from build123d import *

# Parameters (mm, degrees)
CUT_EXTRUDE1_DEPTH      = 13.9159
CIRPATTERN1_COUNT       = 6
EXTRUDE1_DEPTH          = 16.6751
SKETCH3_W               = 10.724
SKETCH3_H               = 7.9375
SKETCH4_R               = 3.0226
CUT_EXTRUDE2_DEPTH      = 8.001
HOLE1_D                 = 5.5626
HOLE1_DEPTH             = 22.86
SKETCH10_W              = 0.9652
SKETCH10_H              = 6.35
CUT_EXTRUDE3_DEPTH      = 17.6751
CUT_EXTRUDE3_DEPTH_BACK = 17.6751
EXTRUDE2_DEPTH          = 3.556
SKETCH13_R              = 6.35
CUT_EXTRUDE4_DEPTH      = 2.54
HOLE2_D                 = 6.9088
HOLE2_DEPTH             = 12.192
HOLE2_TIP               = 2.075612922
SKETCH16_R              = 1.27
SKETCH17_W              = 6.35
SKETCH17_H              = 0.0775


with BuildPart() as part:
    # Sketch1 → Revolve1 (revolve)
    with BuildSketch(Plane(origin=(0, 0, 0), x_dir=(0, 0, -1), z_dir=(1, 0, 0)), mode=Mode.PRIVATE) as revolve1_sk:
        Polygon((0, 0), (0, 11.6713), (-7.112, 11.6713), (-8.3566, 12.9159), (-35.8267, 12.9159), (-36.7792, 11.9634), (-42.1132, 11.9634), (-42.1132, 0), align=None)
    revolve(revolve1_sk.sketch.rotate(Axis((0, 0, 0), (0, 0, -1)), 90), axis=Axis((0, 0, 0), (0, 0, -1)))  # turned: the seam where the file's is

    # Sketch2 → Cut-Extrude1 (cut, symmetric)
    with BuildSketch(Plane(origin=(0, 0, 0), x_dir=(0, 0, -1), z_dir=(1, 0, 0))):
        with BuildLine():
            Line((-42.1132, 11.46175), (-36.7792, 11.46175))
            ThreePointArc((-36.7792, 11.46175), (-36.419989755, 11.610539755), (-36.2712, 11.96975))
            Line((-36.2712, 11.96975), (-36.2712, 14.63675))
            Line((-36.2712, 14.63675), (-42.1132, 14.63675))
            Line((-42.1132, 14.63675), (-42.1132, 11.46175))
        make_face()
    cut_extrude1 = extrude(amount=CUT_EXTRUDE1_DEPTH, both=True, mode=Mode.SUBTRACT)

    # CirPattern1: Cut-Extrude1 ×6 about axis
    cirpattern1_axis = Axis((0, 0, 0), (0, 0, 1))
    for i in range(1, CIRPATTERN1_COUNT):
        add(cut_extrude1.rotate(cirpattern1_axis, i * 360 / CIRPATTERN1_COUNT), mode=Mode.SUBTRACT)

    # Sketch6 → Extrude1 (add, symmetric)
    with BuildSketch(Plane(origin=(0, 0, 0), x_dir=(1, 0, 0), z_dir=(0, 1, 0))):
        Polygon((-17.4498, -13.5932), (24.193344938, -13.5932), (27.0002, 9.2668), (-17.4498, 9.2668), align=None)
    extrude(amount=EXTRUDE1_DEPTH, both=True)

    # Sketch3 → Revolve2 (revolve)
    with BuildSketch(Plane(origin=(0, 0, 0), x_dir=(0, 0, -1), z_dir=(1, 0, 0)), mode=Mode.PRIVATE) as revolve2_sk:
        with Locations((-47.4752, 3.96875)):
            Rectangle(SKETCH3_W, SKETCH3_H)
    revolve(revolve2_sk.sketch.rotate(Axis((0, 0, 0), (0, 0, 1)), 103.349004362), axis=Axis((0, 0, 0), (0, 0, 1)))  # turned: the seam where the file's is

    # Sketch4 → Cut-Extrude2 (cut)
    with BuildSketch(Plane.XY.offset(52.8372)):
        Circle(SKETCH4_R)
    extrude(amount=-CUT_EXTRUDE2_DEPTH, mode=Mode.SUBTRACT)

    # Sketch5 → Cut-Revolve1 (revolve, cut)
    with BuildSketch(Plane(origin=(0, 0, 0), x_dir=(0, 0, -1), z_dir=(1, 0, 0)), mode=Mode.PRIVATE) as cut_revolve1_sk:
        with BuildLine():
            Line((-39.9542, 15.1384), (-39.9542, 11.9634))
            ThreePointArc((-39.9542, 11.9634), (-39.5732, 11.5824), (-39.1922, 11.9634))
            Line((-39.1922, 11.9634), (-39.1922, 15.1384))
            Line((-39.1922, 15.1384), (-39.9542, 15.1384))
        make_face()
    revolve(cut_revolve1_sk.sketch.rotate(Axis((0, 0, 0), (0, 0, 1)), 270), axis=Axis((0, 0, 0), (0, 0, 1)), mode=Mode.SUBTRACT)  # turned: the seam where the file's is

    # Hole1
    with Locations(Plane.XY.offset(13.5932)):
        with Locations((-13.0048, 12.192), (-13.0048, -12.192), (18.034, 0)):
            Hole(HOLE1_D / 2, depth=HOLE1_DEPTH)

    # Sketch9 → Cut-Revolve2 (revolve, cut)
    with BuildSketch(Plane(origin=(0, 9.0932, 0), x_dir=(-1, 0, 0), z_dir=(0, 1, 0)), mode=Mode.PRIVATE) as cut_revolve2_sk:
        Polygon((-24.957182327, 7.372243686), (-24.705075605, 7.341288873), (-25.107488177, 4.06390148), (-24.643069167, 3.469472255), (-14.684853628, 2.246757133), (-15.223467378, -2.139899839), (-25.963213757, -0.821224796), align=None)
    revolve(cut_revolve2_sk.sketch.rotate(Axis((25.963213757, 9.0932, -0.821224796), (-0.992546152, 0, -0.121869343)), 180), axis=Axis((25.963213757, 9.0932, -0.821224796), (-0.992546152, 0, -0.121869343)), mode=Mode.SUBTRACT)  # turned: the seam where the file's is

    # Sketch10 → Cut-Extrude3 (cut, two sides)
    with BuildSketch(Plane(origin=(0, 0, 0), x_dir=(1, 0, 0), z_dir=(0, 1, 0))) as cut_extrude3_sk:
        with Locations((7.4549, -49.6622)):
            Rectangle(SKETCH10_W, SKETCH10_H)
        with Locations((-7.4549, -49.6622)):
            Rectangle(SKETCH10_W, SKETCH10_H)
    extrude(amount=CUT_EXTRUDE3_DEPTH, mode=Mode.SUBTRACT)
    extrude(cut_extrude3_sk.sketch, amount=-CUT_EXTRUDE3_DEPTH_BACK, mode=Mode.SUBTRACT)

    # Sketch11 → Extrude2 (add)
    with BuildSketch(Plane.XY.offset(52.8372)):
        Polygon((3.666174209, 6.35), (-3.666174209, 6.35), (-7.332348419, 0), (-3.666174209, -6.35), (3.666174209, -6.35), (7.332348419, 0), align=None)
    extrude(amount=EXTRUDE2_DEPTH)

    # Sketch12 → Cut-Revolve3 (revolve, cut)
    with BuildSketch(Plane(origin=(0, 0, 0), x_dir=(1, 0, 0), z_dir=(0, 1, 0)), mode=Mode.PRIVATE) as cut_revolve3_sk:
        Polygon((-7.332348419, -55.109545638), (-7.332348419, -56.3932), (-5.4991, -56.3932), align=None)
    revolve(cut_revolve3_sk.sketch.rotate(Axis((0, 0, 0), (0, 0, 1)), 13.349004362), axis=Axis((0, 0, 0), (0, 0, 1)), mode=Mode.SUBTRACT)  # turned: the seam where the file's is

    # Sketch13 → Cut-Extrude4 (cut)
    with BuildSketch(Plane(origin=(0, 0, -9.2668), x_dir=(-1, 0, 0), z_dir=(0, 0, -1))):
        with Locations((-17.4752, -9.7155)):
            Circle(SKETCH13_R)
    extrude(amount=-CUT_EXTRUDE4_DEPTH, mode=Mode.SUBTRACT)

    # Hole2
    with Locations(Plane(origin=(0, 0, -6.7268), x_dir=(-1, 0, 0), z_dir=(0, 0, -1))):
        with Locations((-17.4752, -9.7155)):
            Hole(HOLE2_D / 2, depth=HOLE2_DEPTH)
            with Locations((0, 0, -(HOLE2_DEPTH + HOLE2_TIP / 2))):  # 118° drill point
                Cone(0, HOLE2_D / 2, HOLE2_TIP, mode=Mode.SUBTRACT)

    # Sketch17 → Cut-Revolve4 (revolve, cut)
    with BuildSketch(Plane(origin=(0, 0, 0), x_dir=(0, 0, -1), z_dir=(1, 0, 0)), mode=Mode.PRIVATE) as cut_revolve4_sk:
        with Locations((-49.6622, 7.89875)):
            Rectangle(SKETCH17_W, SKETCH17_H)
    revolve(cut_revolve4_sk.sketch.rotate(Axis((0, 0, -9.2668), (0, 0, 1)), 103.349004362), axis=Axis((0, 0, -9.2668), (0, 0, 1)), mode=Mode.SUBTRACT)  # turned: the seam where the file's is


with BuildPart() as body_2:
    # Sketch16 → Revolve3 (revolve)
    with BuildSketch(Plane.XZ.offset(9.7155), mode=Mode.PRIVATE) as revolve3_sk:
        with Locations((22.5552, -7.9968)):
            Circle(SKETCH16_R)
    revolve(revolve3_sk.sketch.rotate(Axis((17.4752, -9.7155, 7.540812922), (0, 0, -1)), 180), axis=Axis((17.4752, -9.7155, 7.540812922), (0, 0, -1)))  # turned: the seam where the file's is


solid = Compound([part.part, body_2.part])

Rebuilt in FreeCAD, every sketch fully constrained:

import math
import FreeCAD as App
import Part
import Sketcher

V = App.Vector
Q = App.Units.Quantity


def add_polygon(sketch, points):
    """Adds a closed chain of lines whose ends are joined by coincident constraints."""
    first, n = sketch.GeometryCount, len(points)
    for a, b in zip(points, points[1:] + points[:1]):
        sketch.addGeometry(Part.LineSegment(App.Vector(*a, 0), App.Vector(*b, 0)), False)
    for i in range(n):
        sketch.addConstraint(Sketcher.Constraint("Coincident", first + i, 2, first + (i + 1) % n, 1))

doc = App.newDocument("Part")
body = doc.addObject("PartDesign::Body", "Body")

sketch1 = body.newObject("Sketcher::SketchObject", "Sketch")
sketch1.AttachmentSupport = (doc.getObject("YZ_Plane"), [""])
sketch1.MapMode = "FlatFace"
add_polygon(sketch1, [(0, 0), (11.7, 0), (11.7, 7.1), (12.9, 8.4), (12.9, 35.8), (12, 36.8), (12, 42.1), (0, 42.1)])
sketch1.addConstraint([
    Sketcher.Constraint("Horizontal", 0),
    Sketcher.Constraint("Vertical", 1),
    Sketcher.Constraint("Vertical", 3),
    Sketcher.Constraint("Vertical", 5),
    Sketcher.Constraint("Horizontal", 6),
    Sketcher.Constraint("Vertical", 7),
    Sketcher.Constraint("Coincident", 7, 2, -1, 1),
    Sketcher.Constraint("Perpendicular", 2, 4),
    Sketcher.Constraint("Angle", 2, Q("45 deg")),
    Sketcher.Constraint("DistanceY", 1, 1, 1, 2, Q("0.28 in")),
    Sketcher.Constraint("DistanceY", 5, 1, 5, 2, Q("0.21 in")),
    Sketcher.Constraint("DistanceX", 6, 2, 6, 1, Q("0.471 in")),
    Sketcher.Constraint("DistanceY", 7, 2, 7, 1, Q("1.658 in")),
    Sketcher.Constraint("DistanceX", 0, 1, 0, 2, Q("0.4595 in")),
    Sketcher.Constraint("DistanceY", 3, 1, 3, 2, Q("1.0815 in")),
])
revolution = body.newObject("PartDesign::Revolution", "Revolution")
revolution.Profile = sketch1
revolution.ReferenceAxis = (sketch1, ["V_Axis"])
revolution.Angle = 360

sketch2 = body.newObject("Sketcher::SketchObject", "Sketch001")
sketch2.AttachmentSupport = (doc.getObject("YZ_Plane"), [""])
sketch2.MapMode = "FlatFace"
sketch2.addGeometry([
    Part.LineSegment(V(11.5, 42.1, 0), V(11.5, 36.8, 0)),
    Part.ArcOfCircle(Part.Circle(V(12, 36.8, 0), V(0, 0, 1), 0.5), math.radians(180), math.radians(270)),
    Part.LineSegment(V(12, 36.3, 0), V(14.6, 36.3, 0)),
    Part.LineSegment(V(14.6, 36.3, 0), V(14.6, 42.1, 0)),
    Part.LineSegment(V(14.6, 42.1, 0), V(11.5, 42.1, 0)),
], False)
sketch2.addConstraint([
    Sketcher.Constraint("Tangent", 0, 2, 1, 1),
    Sketcher.Constraint("Tangent", 1, 2, 2, 1),
    Sketcher.Constraint("Coincident", 2, 2, 3, 1),
    Sketcher.Constraint("Coincident", 3, 2, 4, 1),
    Sketcher.Constraint("Coincident", 4, 2, 0, 1),
    Sketcher.Constraint("Vertical", 0),
    Sketcher.Constraint("Horizontal", 2),
    Sketcher.Constraint("Vertical", 3),
    Sketcher.Constraint("Horizontal", 4),
    Sketcher.Constraint("Radius", 1, Q("0.02 in")),
    Sketcher.Constraint("DistanceY", 0, 2, 0, 1, Q("0.21 in")),
    Sketcher.Constraint("DistanceX", 2, 1, 2, 2, Q("0.105 in")),
    Sketcher.Constraint("DistanceY", -1, 1, 1, 3, Q("1.448 in")),
    Sketcher.Constraint("DistanceX", -1, 1, 1, 3, 11.96975),
])
pocket1 = body.newObject("PartDesign::Pocket", "Pocket")
pocket1.Profile = sketch2
pocket1.Length = 27.8318
pocket1.Midplane = True
doc.recompute()

polarpattern = body.newObject("PartDesign::PolarPattern", "PolarPattern")
polarpattern.Originals = [pocket1]
polarpattern.Axis = (doc.getObject("Z_Axis"), [""])
polarpattern.Angle = 360
polarpattern.Occurrences = 6
body.Tip = polarpattern

sketch3 = body.newObject("Sketcher::SketchObject", "Sketch002")
sketch3.AttachmentSupport = (doc.getObject("XZ_Plane"), [""])
sketch3.MapMode = "FlatFace"
add_polygon(sketch3, [(-17, 14), (24, 14), (27, -9), (-17, -9)])
sketch3.addConstraint([
    Sketcher.Constraint("Horizontal", 0),
    Sketcher.Constraint("Horizontal", 2),
    Sketcher.Constraint("Vertical", 3),
    Sketcher.Constraint("DistanceY", 3, 1, 3, 2, Q("0.9 in")),
    Sketcher.Constraint("Angle", 1, Q("-83 deg")),
    Sketcher.Constraint("DistanceX", 2, 2, 2, 1, Q("1.75 in")),
    Sketcher.Constraint("DistanceX", -1, 1, 1, 2, Q("1.063 in")),
    Sketcher.Constraint("DistanceY", -1, 1, 0, 2, 13.5932),
])
pad1 = body.newObject("PartDesign::Pad", "Pad")
pad1.Profile = sketch3
pad1.Length = Q("1.313 in")
pad1.Midplane = True

sketch4 = body.newObject("Sketcher::SketchObject", "Sketch003")
sketch4.AttachmentSupport = (doc.getObject("YZ_Plane"), [""])
sketch4.MapMode = "FlatFace"
add_polygon(sketch4, [(8, 53), (0, 53), (0, 42), (8, 42)])
sketch4.addConstraint([
    Sketcher.Constraint("Horizontal", 0),
    Sketcher.Constraint("Vertical", 1),
    Sketcher.Constraint("Horizontal", 2),
    Sketcher.Constraint("Vertical", 3),
    Sketcher.Constraint("PointOnObject", 0, 2, -2),
    Sketcher.Constraint("DistanceX", 0, 2, 0, 1, Q("0.3125 in")),
    Sketcher.Constraint("DistanceY", -1, 1, 1, 2, Q("1.658 in")),
    Sketcher.Constraint("DistanceY", 1, 2, 1, 1, 10.724),
])
revolution2 = body.newObject("PartDesign::Revolution", "Revolution001")
revolution2.Profile = sketch4
revolution2.ReferenceAxis = (sketch4, ["V_Axis"])
revolution2.Angle = 360

sketch5 = body.newObject("Sketcher::SketchObject", "Sketch004")
sketch5.AttachmentSupport = (doc.getObject("XY_Plane"), [""])
sketch5.MapMode = "FlatFace"
sketch5.AttachmentOffset = App.Placement(V(0, 0, 52.8372), App.Rotation())
sketch5.addGeometry(Part.Circle(V(0, 0, 0), V(0, 0, 1), 3), False)
sketch5.addConstraint([
    Sketcher.Constraint("Coincident", 0, 3, -1, 1),
    Sketcher.Constraint("Diameter", 0, Q("0.238 in")),
])
pocket2 = body.newObject("PartDesign::Pocket", "Pocket001")
pocket2.Profile = sketch5
pocket2.Length = Q("0.315 in")

sketch6 = body.newObject("Sketcher::SketchObject", "Sketch005")
sketch6.AttachmentSupport = (doc.getObject("YZ_Plane"), [""])
sketch6.MapMode = "FlatFace"
sketch6.addGeometry([
    Part.LineSegment(V(15.14, 39.95, 0), V(11.96, 39.95, 0)),
    Part.ArcOfCircle(Part.Circle(V(11.96, 39.57, 0), V(0, 0, 1), 0.38), math.radians(90), math.radians(270)),
    Part.LineSegment(V(11.96, 39.19, 0), V(15.14, 39.19, 0)),
    Part.LineSegment(V(15.14, 39.19, 0), V(15.14, 39.95, 0)),
], False)
sketch6.addConstraint([
    Sketcher.Constraint("Tangent", 0, 2, 1, 1),
    Sketcher.Constraint("Tangent", 1, 2, 2, 1),
    Sketcher.Constraint("Coincident", 2, 2, 3, 1),
    Sketcher.Constraint("Coincident", 3, 2, 0, 1),
    Sketcher.Constraint("Horizontal", 0),
    Sketcher.Constraint("Horizontal", 2),
    Sketcher.Constraint("Vertical", 3),
    Sketcher.Constraint("Radius", 1, Q("0.015 in")),
    Sketcher.Constraint("DistanceX", 0, 2, 0, 1, Q("0.125 in")),
    Sketcher.Constraint("DistanceX", -1, 1, 1, 3, Q("0.471 in")),
    Sketcher.Constraint("DistanceY", -1, 1, 1, 3, Q("1.558 in")),
])
groove = body.newObject("PartDesign::Groove", "Groove")
groove.Profile = sketch6
groove.ReferenceAxis = (sketch6, ["V_Axis"])
groove.Angle = 360

sketch7 = body.newObject("Sketcher::SketchObject", "Sketch006")
sketch7.AttachmentSupport = (doc.getObject("XY_Plane"), [""])
sketch7.MapMode = "FlatFace"
sketch7.AttachmentOffset = App.Placement(V(0, 0, 13.5932), App.Rotation())
sketch7.addGeometry([
    Part.Circle(V(-13, 12.2, 0), V(0, 0, 1), 2.8),
    Part.Circle(V(-13, -12.2, 0), V(0, 0, 1), 2.8),
    Part.Circle(V(18, 0, 0), V(0, 0, 1), 2.8),
], False)
sketch7.addConstraint([
    Sketcher.Constraint("Equal", 0, 1),
    Sketcher.Constraint("Equal", 1, 2),
    Sketcher.Constraint("Symmetric", 0, 3, 1, 3, -1),
    Sketcher.Constraint("PointOnObject", 2, 3, -1),
    Sketcher.Constraint("Diameter", 0, Q("0.219 in")),
    Sketcher.Constraint("DistanceY", -1, 1, 0, 3, Q("0.48 in")),
    Sketcher.Constraint("DistanceX", -1, 1, 2, 3, Q("0.71 in")),
    Sketcher.Constraint("DistanceX", 0, 3, -1, 1, Q("0.512 in")),
])
doc.recompute()
hole = body.newObject("PartDesign::Hole", "Hole")
hole.Profile = sketch7
hole.ThreadType = "None"
hole.Diameter = Q("0.219 in")
hole.DepthType = "Dimension"
hole.Depth = Q("0.9 in")
hole.DrillPoint = "Flat"

sketch8 = body.newObject("Sketcher::SketchObject", "Sketch007")
sketch8.AttachmentSupport = (doc.getObject("XZ_Plane"), [""])
sketch8.MapMode = "FlatFace"
sketch8.AttachmentOffset = App.Placement(V(0, 0, -0.358 * 25.4), App.Rotation())
add_polygon(sketch8, [(24.71, 7.34), (24.96, 7.37), (25.96, -0.82), (15.22, -2.14), (14.68, 2.25), (24.64, 3.47), (25.11, 4.06)])
sketch8.addGeometry(Part.LineSegment(V(25.96, -0.82, 0), V(15.22, -2.14, 0)), True)
sketch8.addConstraint([
    Sketcher.Constraint("Coincident", 7, 1, 1, 2),
    Sketcher.Constraint("Coincident", 7, 2, 2, 2),
    Sketcher.Constraint("Perpendicular", 0, 1),
    Sketcher.Constraint("Perpendicular", 1, 2),
    Sketcher.Constraint("Perpendicular", 2, 3),
    Sketcher.Constraint("Perpendicular", 3, 4),
    Sketcher.Constraint("Perpendicular", 4, 6),
    Sketcher.Constraint("Angle", 0, Q("7 deg")),
    Sketcher.Constraint("Angle", 5, Q("52 deg")),
    Sketcher.Constraint("Distance", 0, Q("0.01 in")),
    Sketcher.Constraint("Distance", 6, Q("0.13 in")),
    Sketcher.Constraint("Distance", 1, Q("0.325 in")),
    Sketcher.Constraint("Distance", 2, Q("0.426 in")),
    Sketcher.Constraint("Distance", 3, Q("0.174 in")),
    Sketcher.Constraint("DistanceY", 2, 2, -1, 1, 2.1399),
    Sketcher.Constraint("DistanceX", -1, 1, 4, 2, 24.643069),
])
groove2 = body.newObject("PartDesign::Groove", "Groove001")
groove2.Profile = sketch8
groove2.ReferenceAxis = (sketch8, ["Axis0"])
groove2.Angle = 360

sketch9 = body.newObject("Sketcher::SketchObject", "Sketch008")
sketch9.AttachmentSupport = (doc.getObject("XZ_Plane"), [""])
sketch9.MapMode = "FlatFace"
add_polygon(sketch9, [(7, 46.5), (7, 52.8), (7.9, 52.8), (7.9, 46.5)])
add_polygon(sketch9, [(-7.9, 46.5), (-7.9, 52.8), (-7, 52.8), (-7, 46.5)])
sketch9.addConstraint([
    Sketcher.Constraint("Vertical", 0),
    Sketcher.Constraint("Horizontal", 1),
    Sketcher.Constraint("Vertical", 2),
    Sketcher.Constraint("Horizontal", 3),
    Sketcher.Constraint("Vertical", 4),
    Sketcher.Constraint("Horizontal", 5),
    Sketcher.Constraint("Vertical", 6),
    Sketcher.Constraint("Horizontal", 7),
    Sketcher.Constraint("Symmetric", 1, 2, 4, 2, -2),
    Sketcher.Constraint("Symmetric", 3, 2, 6, 2, -2),
    Sketcher.Constraint("DistanceY", 0, 1, 0, 2, Q("0.25 in")),
    Sketcher.Constraint("DistanceX", 1, 1, 1, 2, Q("0.038 in")),
    Sketcher.Constraint("DistanceX", -1, 1, 1, 2, Q("0.3125 in")),
    Sketcher.Constraint("DistanceY", -1, 1, 0, 2, 52.8372),
])
pocket3 = body.newObject("PartDesign::Pocket", "Pocket002")
pocket3.Profile = sketch9
pocket3.Type = "ThroughAll"
pocket3.Midplane = True

sketch10 = body.newObject("Sketcher::SketchObject", "Sketch009")
sketch10.AttachmentSupport = (doc.getObject("XY_Plane"), [""])
sketch10.MapMode = "FlatFace"
sketch10.AttachmentOffset = App.Placement(V(0, 0, 52.8372), App.Rotation())
add_polygon(sketch10, [(4, 6), (-4, 6), (-7, 0), (-4, -6), (4, -6), (7, 0)])
sketch10.addConstraint([
    Sketcher.Constraint("Horizontal", 0),
    Sketcher.Constraint("Horizontal", 3),
    Sketcher.Constraint("Symmetric", 0, 2, 3, 2, -1, 1),
    Sketcher.Constraint("Symmetric", 1, 2, 4, 2, -1, 1),
    Sketcher.Constraint("PointOnObject", 1, 2, -1),
    Sketcher.Constraint("Parallel", 2, 5),
    Sketcher.Constraint("Vertical", 0, 2, 2, 2),
    Sketcher.Constraint("Angle", 1, Q("-120 deg")),
    Sketcher.Constraint("DistanceY", 2, 2, 0, 2, Q("0.5 in")),
    Sketcher.Constraint("DistanceX", 0, 2, 0, 1, 7.332348),
])
pad2 = body.newObject("PartDesign::Pad", "Pad001")
pad2.Profile = sketch10
pad2.Length = Q("0.14 in")

sketch11 = body.newObject("Sketcher::SketchObject", "Sketch010")
sketch11.AttachmentSupport = (doc.getObject("XZ_Plane"), [""])
sketch11.MapMode = "FlatFace"
add_polygon(sketch11, [(-7.3, 55.1), (-7.3, 56.4), (-5.5, 56.4)])
sketch11.addConstraint([
    Sketcher.Constraint("Vertical", 0),
    Sketcher.Constraint("Horizontal", 1),
    Sketcher.Constraint("Angle", 2, Q("-145 deg")),
    Sketcher.Constraint("DistanceX", 1, 2, -1, 1, Q("0.2165 in")),
    Sketcher.Constraint("DistanceX", 1, 1, 1, 2, 1.833248),
    Sketcher.Constraint("DistanceY", -1, 1, 0, 2, 56.3932),
])
groove3 = body.newObject("PartDesign::Groove", "Groove002")
groove3.Profile = sketch11
groove3.ReferenceAxis = (sketch11, ["V_Axis"])
groove3.Angle = 360

sketch12 = body.newObject("Sketcher::SketchObject", "Sketch011")
sketch12.AttachmentSupport = (doc.getObject("XY_Plane"), [""])
sketch12.MapMode = "FlatFace"
sketch12.AttachmentOffset = App.Placement(V(0, 0, -9.2668), App.Rotation())
sketch12.addGeometry(Part.Circle(V(17, -10, 0), V(0, 0, 1), 6), False)
sketch12.addConstraint([
    Sketcher.Constraint("Diameter", 0, Q("0.5 in")),
    Sketcher.Constraint("DistanceX", -1, 1, 0, 3, Q("0.688 in")),
    Sketcher.Constraint("DistanceY", 0, 3, -1, 1, Q("0.3825 in")),
])
pocket4 = body.newObject("PartDesign::Pocket", "Pocket003")
pocket4.Profile = sketch12
pocket4.Length = Q("0.1 in")
pocket4.Reversed = True

sketch13 = body.newObject("Sketcher::SketchObject", "Sketch012")
sketch13.AttachmentSupport = (doc.getObject("XY_Plane"), [""])
sketch13.MapMode = "FlatFace"
sketch13.AttachmentOffset = App.Placement(V(0, 0, -6.7268), App.Rotation())
sketch13.addGeometry(Part.Circle(V(17.5, -9.7, 0), V(0, 0, 1), 3.5), False)
sketch13.addConstraint([
    Sketcher.Constraint("Diameter", 0, Q("0.272 in")),
    Sketcher.Constraint("DistanceX", -1, 1, 0, 3, Q("0.688 in")),
    Sketcher.Constraint("DistanceY", 0, 3, -1, 1, Q("0.3825 in")),
])
doc.recompute()
hole2 = body.newObject("PartDesign::Hole", "Hole001")
hole2.Profile = sketch13
hole2.ThreadType = "None"
hole2.Diameter = Q("0.272 in")
hole2.DepthType = "Dimension"
hole2.Depth = Q("0.48 in")
hole2.DrillPoint = "Angled"
hole2.DrillPointAngle = 118
hole2.Reversed = True

sketch14 = body.newObject("Sketcher::SketchObject", "Sketch013")
sketch14.AttachmentSupport = (doc.getObject("YZ_Plane"), [""])
sketch14.MapMode = "FlatFace"
add_polygon(sketch14, [(7.94, 52.84), (7.86, 52.84), (7.86, 46.49), (7.94, 46.49)])
sketch14.addConstraint([
    Sketcher.Constraint("Horizontal", 0),
    Sketcher.Constraint("Vertical", 1),
    Sketcher.Constraint("Horizontal", 2),
    Sketcher.Constraint("Vertical", 3),
    Sketcher.Constraint("DistanceY", 1, 2, 1, 1, Q("0.25 in")),
    Sketcher.Constraint("DistanceX", -1, 1, 2, 2, Q("0.3125 in")),
    Sketcher.Constraint("DistanceX", 0, 2, 0, 1, 0.0775),
    Sketcher.Constraint("DistanceY", -1, 1, 0, 2, 52.8372),
])
groove4 = body.newObject("PartDesign::Groove", "Groove003")
groove4.Profile = sketch14
groove4.ReferenceAxis = (sketch14, ["V_Axis"])
groove4.Angle = 360
body2 = doc.addObject("PartDesign::Body", "Body001")

sketch15 = body2.newObject("Sketcher::SketchObject", "Sketch014")
sketch15.AttachmentSupport = (doc.getObject("XZ_Plane001"), [""])
sketch15.MapMode = "FlatFace"
sketch15.AttachmentOffset = App.Placement(V(0, 0, 0.3825 * 25.4), App.Rotation())
sketch15.addGeometry(Part.Circle(V(22.6, -8, 0), V(0, 0, 1), 1.3), False)
sketch15.addGeometry(Part.LineSegment(V(17.5, -8, 0), V(17.5, -18, 0)), True)
sketch15.addConstraint([
    Sketcher.Constraint("Vertical", 1),
    Sketcher.Constraint("Horizontal", 0, 3, 1, 1),
    Sketcher.Constraint("Diameter", 0, Q("0.1 in")),
    Sketcher.Constraint("DistanceX", 1, 1, 0, 3, Q("0.2 in")),
    Sketcher.Constraint("DistanceX", -1, 1, 0, 3, Q("0.888 in")),
    Sketcher.Constraint("DistanceY", 1, 2, 1, 1, 10.0),
    Sketcher.Constraint("DistanceY", 0, 3, -1, 1, 7.9968),
])
revolution3 = body2.newObject("PartDesign::Revolution", "Revolution002")
revolution3.Profile = sketch15
revolution3.ReferenceAxis = (sketch15, ["Axis0"])
revolution3.Angle = 360

doc.recompute()
